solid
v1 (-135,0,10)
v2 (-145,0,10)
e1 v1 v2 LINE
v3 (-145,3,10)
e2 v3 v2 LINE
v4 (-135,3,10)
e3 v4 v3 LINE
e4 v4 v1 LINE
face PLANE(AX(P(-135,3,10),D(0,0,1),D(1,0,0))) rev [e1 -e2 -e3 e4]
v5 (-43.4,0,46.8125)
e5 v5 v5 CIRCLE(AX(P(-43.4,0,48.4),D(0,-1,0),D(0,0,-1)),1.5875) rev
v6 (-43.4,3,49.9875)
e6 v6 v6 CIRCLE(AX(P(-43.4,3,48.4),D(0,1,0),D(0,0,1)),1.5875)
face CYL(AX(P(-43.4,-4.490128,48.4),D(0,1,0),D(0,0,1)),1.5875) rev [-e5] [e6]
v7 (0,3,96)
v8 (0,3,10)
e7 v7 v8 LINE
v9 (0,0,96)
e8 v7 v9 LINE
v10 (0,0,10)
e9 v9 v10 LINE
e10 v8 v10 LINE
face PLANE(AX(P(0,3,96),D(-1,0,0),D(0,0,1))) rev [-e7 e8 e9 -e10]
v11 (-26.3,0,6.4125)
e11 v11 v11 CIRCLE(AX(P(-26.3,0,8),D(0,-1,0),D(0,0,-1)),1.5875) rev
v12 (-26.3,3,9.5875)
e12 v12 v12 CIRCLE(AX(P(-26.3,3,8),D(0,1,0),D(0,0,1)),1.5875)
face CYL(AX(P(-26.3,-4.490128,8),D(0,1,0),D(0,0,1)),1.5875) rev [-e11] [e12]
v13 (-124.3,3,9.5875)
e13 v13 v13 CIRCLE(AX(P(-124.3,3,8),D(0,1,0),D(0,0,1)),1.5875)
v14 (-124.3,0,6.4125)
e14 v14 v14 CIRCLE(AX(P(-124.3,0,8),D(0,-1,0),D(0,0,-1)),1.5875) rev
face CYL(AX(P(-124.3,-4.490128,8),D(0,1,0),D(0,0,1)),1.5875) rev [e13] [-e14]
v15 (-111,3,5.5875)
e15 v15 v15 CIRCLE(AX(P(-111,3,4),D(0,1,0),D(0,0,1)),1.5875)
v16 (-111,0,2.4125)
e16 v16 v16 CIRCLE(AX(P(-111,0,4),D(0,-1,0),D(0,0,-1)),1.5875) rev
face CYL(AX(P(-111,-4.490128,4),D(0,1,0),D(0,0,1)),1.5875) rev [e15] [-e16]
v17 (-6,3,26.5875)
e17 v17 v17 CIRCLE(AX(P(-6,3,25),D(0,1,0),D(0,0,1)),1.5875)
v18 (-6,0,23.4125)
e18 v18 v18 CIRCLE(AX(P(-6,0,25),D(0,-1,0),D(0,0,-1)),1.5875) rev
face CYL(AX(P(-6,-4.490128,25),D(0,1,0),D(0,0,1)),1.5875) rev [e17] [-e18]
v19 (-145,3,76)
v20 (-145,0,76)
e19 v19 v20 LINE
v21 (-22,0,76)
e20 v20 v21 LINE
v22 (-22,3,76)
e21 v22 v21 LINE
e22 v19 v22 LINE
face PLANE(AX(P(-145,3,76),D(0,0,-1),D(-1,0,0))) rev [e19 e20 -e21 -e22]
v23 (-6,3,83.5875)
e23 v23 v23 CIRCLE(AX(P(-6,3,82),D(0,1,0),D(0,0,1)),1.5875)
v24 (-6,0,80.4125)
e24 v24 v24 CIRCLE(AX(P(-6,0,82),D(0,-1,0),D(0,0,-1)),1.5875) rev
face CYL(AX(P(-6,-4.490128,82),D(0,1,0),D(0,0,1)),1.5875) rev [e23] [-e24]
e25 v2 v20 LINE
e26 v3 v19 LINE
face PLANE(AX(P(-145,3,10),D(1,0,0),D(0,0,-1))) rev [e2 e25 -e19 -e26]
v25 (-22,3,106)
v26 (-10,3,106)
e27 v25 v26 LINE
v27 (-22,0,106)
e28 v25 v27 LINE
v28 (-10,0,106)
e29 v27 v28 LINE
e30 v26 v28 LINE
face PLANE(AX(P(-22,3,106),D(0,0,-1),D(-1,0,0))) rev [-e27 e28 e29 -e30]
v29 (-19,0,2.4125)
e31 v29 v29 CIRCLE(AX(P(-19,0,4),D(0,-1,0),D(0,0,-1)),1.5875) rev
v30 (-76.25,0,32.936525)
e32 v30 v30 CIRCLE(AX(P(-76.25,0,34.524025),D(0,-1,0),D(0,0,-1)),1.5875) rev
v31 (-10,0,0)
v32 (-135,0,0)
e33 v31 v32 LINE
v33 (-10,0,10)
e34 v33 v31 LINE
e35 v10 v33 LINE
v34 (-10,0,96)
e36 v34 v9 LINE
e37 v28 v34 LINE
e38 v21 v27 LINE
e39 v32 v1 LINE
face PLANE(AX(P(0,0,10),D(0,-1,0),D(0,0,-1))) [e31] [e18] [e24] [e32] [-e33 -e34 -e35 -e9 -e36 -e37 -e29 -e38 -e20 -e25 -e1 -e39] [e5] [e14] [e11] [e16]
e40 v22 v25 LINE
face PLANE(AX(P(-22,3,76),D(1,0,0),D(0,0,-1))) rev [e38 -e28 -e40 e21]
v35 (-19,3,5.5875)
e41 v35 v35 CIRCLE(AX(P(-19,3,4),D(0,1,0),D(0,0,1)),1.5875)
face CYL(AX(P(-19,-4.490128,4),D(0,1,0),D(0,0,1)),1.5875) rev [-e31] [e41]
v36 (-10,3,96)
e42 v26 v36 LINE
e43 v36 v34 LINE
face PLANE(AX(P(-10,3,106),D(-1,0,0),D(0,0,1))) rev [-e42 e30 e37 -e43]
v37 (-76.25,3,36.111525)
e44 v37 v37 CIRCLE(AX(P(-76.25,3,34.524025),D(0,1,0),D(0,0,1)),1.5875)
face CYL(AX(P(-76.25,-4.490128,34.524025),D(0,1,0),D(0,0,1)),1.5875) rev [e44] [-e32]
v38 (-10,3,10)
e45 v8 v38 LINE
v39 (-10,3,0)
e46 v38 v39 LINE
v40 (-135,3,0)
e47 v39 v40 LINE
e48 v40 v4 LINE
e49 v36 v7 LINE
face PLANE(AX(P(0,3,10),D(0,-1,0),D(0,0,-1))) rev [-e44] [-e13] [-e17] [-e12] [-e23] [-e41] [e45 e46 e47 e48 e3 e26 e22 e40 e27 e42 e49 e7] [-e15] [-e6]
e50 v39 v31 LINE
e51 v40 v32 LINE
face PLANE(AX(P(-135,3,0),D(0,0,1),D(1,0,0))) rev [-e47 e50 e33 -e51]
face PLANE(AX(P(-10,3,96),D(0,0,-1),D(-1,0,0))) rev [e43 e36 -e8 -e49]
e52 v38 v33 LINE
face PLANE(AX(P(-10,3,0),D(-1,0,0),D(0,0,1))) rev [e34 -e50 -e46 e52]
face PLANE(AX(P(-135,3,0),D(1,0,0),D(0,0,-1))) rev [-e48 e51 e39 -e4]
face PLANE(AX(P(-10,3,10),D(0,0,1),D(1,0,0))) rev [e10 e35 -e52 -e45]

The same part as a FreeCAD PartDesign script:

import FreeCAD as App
import Part
import Sketcher


def add_polygon(sketch, points):
    """Adds a closed chain of lines whose ends are joined by coincident constraints."""
    first, n = sketch.GeometryCount, len(points)
    for a, b in zip(points, points[1:] + points[:1]):
        sketch.addGeometry(Part.LineSegment(App.Vector(*a, 0), App.Vector(*b, 0)), False)
    for i in range(n):
        sketch.addConstraint(Sketcher.Constraint("Coincident", first + i, 2, first + (i + 1) % n, 1))

doc = App.newDocument("Part")
body = doc.addObject("PartDesign::Body", "Body")

# Sketch on XZ plane
sketch1 = body.newObject("Sketcher::SketchObject", "Sketch")
sketch1.AttachmentSupport = (doc.getObject("XZ_Plane"), [""])
sketch1.MapMode = "FlatFace"
add_polygon(sketch1, [(-145, 76), (-22, 76), (-22, 106), (-10, 106), (-10, 96), (0, 96), (0, 10), (-10, 10), (-10, 0), (-135, 0), (-135, 10), (-145, 10)])  # lines 0-11
sketch1.addConstraint(Sketcher.Constraint("Horizontal", 0))
sketch1.addConstraint(Sketcher.Constraint("Vertical", 1))
sketch1.addConstraint(Sketcher.Constraint("Horizontal", 2))
sketch1.addConstraint(Sketcher.Constraint("Vertical", 3))
sketch1.addConstraint(Sketcher.Constraint("Horizontal", 4))
sketch1.addConstraint(Sketcher.Constraint("Vertical", 5))
sketch1.addConstraint(Sketcher.Constraint("Horizontal", 6))
sketch1.addConstraint(Sketcher.Constraint("Vertical", 7))
sketch1.addConstraint(Sketcher.Constraint("Horizontal", 8))
sketch1.addConstraint(Sketcher.Constraint("Vertical", 9))
sketch1.addConstraint(Sketcher.Constraint("Horizontal", 10))
sketch1.addConstraint(Sketcher.Constraint("Vertical", 11))
sketch1.addConstraint(Sketcher.Constraint("PointOnObject", 4, 2, -2))
sketch1.addConstraint(Sketcher.Constraint("PointOnObject", 7, 2, -1))
sketch1.addConstraint(Sketcher.Constraint("Horizontal", 6, 2, 9, 2))
sketch1.addConstraint(Sketcher.Constraint("Vertical", 3, 2, 6, 2))
sketch1.addConstraint(Sketcher.Constraint("Equal", 6, 10))
sketch1.addConstraint(Sketcher.Constraint("Equal", 10, 3))
sketch1.addConstraint(Sketcher.Constraint("Equal", 3, 7))
sketch1.addConstraint(Sketcher.Constraint("DistanceX", 0, 1, 0, 2, 123.0))
sketch1.addConstraint(Sketcher.Constraint("DistanceX", 2, 1, 2, 2, 12.0))
sketch1.addConstraint(Sketcher.Constraint("DistanceX", 4, 1, 4, 2, 10.0))
sketch1.addConstraint(Sketcher.Constraint("DistanceY", 1, 1, 1, 2, 30.0))
sketch1.addConstraint(Sketcher.Constraint("DistanceY", 5, 2, 5, 1, 86.0))
pad1 = body.newObject("PartDesign::Pad", "Pad")
pad1.Profile = sketch1
pad1.Length = 3
pad1.Reversed = True

# Sketch on XZ plane
sketch2 = body.newObject("Sketcher::SketchObject", "Sketch001")
sketch2.AttachmentSupport = (doc.getObject("XZ_Plane"), [""])
sketch2.MapMode = "FlatFace"
sketch2.AttachmentOffset = App.Placement(App.Vector(0, 0, -3), App.Rotation())
sketch2.addGeometry(Part.Circle(App.Vector(-6, 25, 0), App.Vector(0, 0, 1), 1.6), False)
sketch2.addGeometry(Part.Circle(App.Vector(-6, 82, 0), App.Vector(0, 0, 1), 1.6), False)
sketch2.addGeometry(Part.Circle(App.Vector(-26.3, 8, 0), App.Vector(0, 0, 1), 1.6), False)
sketch2.addGeometry(Part.Circle(App.Vector(-124.3, 8, 0), App.Vector(0, 0, 1), 1.6), False)
sketch2.addConstraint(Sketcher.Constraint("Equal", 0, 1))
sketch2.addConstraint(Sketcher.Constraint("Equal", 1, 2))
sketch2.addConstraint(Sketcher.Constraint("Equal", 2, 3))
sketch2.addConstraint(Sketcher.Constraint("Horizontal", 2, 3, 3, 3))
sketch2.addConstraint(Sketcher.Constraint("Vertical", 0, 3, 1, 3))
sketch2.addConstraint(Sketcher.Constraint("Diameter", 0, 3.175))
sketch2.addConstraint(Sketcher.Constraint("DistanceX", 0, 3, -1, 1, 6.0))
sketch2.addConstraint(Sketcher.Constraint("DistanceY", -1, 1, 0, 3, 25.0))
sketch2.addConstraint(Sketcher.Constraint("DistanceY", -1, 1, 1, 3, 82.0))
sketch2.addConstraint(Sketcher.Constraint("DistanceY", -1, 1, 2, 3, 8.0))
sketch2.addConstraint(Sketcher.Constraint("DistanceX", 3, 3, 2, 3, 98.0))
sketch2.addConstraint(Sketcher.Constraint("DistanceX", 2, 3, -1, 1, 26.3))
pocket1 = body.newObject("PartDesign::Pocket", "Pocket")
pocket1.Profile = sketch2
pocket1.Length = 3
pocket1.Reversed = True

# Sketch on XZ plane
sketch3 = body.newObject("Sketcher::SketchObject", "Sketch002")
sketch3.AttachmentSupport = (doc.getObject("XZ_Plane"), [""])
sketch3.MapMode = "FlatFace"
sketch3.AttachmentOffset = App.Placement(App.Vector(0, 0, -3), App.Rotation())
sketch3.addGeometry(Part.Circle(App.Vector(-111, 4, 0), App.Vector(0, 0, 1), 1.6), False)
sketch3.addGeometry(Part.Circle(App.Vector(-19, 4, 0), App.Vector(0, 0, 1), 1.6), False)
sketch3.addGeometry(Part.Circle(App.Vector(-43.4, 48.4, 0), App.Vector(0, 0, 1), 1.6), False)
sketch3.addConstraint(Sketcher.Constraint("Equal", 0, 1))
sketch3.addConstraint(Sketcher.Constraint("Equal", 1, 2))
sketch3.addConstraint(Sketcher.Constraint("Horizontal", 0, 3, 1, 3))
sketch3.addConstraint(Sketcher.Constraint("Diameter", 0, 3.175))
sketch3.addConstraint(Sketcher.Constraint("DistanceX", 0, 3, -1, 1, 111.0))
sketch3.addConstraint(Sketcher.Constraint("DistanceY", -1, 1, 0, 3, 4.0))
sketch3.addConstraint(Sketcher.Constraint("DistanceX", 1, 3, -1, 1, 19.0))
sketch3.addConstraint(Sketcher.Constraint("DistanceX", 2, 3, -1, 1, 43.4))
sketch3.addConstraint(Sketcher.Constraint("DistanceY", -1, 1, 2, 3, 48.4))
pocket2 = body.newObject("PartDesign::Pocket", "Pocket001")
pocket2.Profile = sketch3
pocket2.Length = 3
pocket2.Reversed = True

# Sketch on XZ plane
sketch4 = body.newObject("Sketcher::SketchObject", "Sketch003")
sketch4.AttachmentSupport = (doc.getObject("XZ_Plane"), [""])
sketch4.MapMode = "FlatFace"
sketch4.AttachmentOffset = App.Placement(App.Vector(0, 0, -3), App.Rotation())
sketch4.addGeometry(Part.Circle(App.Vector(-76.2, 34.5, 0), App.Vector(0, 0, 1), 1.6), False)
sketch4.addConstraint(Sketcher.Constraint("Diameter", 0, 3.175))
sketch4.addConstraint(Sketcher.Constraint("DistanceX", 0, 3, -1, 1, 76.25))
sketch4.addConstraint(Sketcher.Constraint("DistanceY", -1, 1, 0, 3, 34.524025))
pocket3 = body.newObject("PartDesign::Pocket", "Pocket002")
pocket3.Profile = sketch4
pocket3.Length = 3
pocket3.Reversed = True

doc.recompute()
